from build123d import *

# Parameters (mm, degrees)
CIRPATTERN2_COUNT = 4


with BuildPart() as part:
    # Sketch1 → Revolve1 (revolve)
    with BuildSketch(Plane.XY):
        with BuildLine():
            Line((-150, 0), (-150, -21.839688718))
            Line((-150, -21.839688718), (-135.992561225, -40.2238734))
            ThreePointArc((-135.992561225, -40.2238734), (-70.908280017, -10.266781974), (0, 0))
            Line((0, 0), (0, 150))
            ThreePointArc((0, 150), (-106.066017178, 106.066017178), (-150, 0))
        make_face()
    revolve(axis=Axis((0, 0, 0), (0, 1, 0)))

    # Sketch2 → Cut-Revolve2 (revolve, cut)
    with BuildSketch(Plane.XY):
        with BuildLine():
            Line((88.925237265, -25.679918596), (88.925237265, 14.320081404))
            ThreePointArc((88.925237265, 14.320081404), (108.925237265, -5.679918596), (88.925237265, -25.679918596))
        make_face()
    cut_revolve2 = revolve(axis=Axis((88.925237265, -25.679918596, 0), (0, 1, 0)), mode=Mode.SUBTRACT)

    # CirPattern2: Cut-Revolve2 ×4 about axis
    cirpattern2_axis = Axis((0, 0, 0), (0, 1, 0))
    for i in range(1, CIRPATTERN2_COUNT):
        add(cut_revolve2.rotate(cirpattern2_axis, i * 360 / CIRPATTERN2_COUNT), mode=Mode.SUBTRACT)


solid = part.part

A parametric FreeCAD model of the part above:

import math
import FreeCAD as App
import Part
import Sketcher

V = App.Vector
Q = App.Units.Quantity

doc = App.newDocument("Part")
body = doc.addObject("PartDesign::Body", "Body")

sketch1 = body.newObject("Sketcher::SketchObject", "Sketch")
sketch1.AttachmentSupport = (doc.getObject("XY_Plane"), [""])
sketch1.MapMode = "FlatFace"
sketch1.addGeometry([
    Part.LineSegment(V(-150, 0, 0), V(-150, -22, 0)),
    Part.LineSegment(V(-150, -22, 0), V(-136, -40, 0)),
    Part.ArcOfCircle(Part.Circle(V(0, -250, 0), V(0, 0, 1), 250), math.radians(90), math.radians(123)),
    Part.LineSegment(V(0, 0, 0), V(0, 150, 0)),
    Part.ArcOfCircle(Part.Circle(V(0, 0, 0), V(0, 0, 1), 150), math.radians(90), math.radians(180)),
], False)
sketch1.addConstraint([
    Sketcher.Constraint("Coincident", 0, 2, 1, 1),
    Sketcher.Constraint("Coincident", 1, 2, 2, 2),
    Sketcher.Constraint("Coincident", 2, 1, 3, 1),
    Sketcher.Constraint("Coincident", 3, 2, 4, 1),
    Sketcher.Constraint("Tangent", 4, 2, 0, 1),
    Sketcher.Constraint("Vertical", 0),
    Sketcher.Constraint("Vertical", 3),
    Sketcher.Constraint("Coincident", 4, 3, -1, 1),
    Sketcher.Constraint("Coincident", 2, 1, -1, 1),
    Sketcher.Constraint("PointOnObject", 2, 3, -2),
    Sketcher.Constraint("Radius", 2, Q("250 mm")),
    Sketcher.Constraint("Radius", 4, Q("150 mm")),
    Sketcher.Constraint("DistanceY", 0, 2, 0, 1, Q("21.839689 mm")),
    Sketcher.Constraint("DistanceX", 1, 2, -1, 1, Q("135.992561 mm")),
])
revolution = body.newObject("PartDesign::Revolution", "Revolution")
revolution.Profile = sketch1
revolution.ReferenceAxis = (sketch1, ["V_Axis"])
revolution.Angle = 360

sketch2 = body.newObject("Sketcher::SketchObject", "Sketch001")
sketch2.AttachmentSupport = (doc.getObject("XY_Plane"), [""])
sketch2.MapMode = "FlatFace"
sketch2.addGeometry([
    Part.LineSegment(V(89, 14, 0), V(89, -26, 0)),
    Part.ArcOfCircle(Part.Circle(V(89, -6, 0), V(0, 0, 1), 20), math.radians(-90), math.radians(90)),
], False)
sketch2.addGeometry(Part.LineSegment(V(89, -26, 0), V(89, 14, 0)), True)
sketch2.addConstraint([
    Sketcher.Constraint("Coincident", 0, 1, 1, 2),
    Sketcher.Constraint("Coincident", 1, 1, 0, 2),
    Sketcher.Constraint("Vertical", 0),
    Sketcher.Constraint("Vertical", 2),
    Sketcher.Constraint("Coincident", 2, 1, 1, 1),
    Sketcher.Constraint("Vertical", 1, 3, 0, 1),
    Sketcher.Constraint("Equal", 0, 2),
    Sketcher.Constraint("Radius", 1, Q("20 mm")),
    Sketcher.Constraint("DistanceY", 1, 3, -1, 1, Q("5.679919 mm")),
    Sketcher.Constraint("DistanceX", -1, 1, 1, 3, Q("88.925237 mm")),
])
groove = body.newObject("PartDesign::Groove", "Groove")
groove.Profile = sketch2
groove.ReferenceAxis = (sketch2, ["Axis0"])
groove.Angle = 360
doc.recompute()

polarpattern = body.newObject("PartDesign::PolarPattern", "PolarPattern")
polarpattern.Originals = [groove]
polarpattern.Axis = (doc.getObject("Y_Axis"), [""])
polarpattern.Angle = 360
polarpattern.Occurrences = 4
body.Tip = polarpattern

doc.recompute()
